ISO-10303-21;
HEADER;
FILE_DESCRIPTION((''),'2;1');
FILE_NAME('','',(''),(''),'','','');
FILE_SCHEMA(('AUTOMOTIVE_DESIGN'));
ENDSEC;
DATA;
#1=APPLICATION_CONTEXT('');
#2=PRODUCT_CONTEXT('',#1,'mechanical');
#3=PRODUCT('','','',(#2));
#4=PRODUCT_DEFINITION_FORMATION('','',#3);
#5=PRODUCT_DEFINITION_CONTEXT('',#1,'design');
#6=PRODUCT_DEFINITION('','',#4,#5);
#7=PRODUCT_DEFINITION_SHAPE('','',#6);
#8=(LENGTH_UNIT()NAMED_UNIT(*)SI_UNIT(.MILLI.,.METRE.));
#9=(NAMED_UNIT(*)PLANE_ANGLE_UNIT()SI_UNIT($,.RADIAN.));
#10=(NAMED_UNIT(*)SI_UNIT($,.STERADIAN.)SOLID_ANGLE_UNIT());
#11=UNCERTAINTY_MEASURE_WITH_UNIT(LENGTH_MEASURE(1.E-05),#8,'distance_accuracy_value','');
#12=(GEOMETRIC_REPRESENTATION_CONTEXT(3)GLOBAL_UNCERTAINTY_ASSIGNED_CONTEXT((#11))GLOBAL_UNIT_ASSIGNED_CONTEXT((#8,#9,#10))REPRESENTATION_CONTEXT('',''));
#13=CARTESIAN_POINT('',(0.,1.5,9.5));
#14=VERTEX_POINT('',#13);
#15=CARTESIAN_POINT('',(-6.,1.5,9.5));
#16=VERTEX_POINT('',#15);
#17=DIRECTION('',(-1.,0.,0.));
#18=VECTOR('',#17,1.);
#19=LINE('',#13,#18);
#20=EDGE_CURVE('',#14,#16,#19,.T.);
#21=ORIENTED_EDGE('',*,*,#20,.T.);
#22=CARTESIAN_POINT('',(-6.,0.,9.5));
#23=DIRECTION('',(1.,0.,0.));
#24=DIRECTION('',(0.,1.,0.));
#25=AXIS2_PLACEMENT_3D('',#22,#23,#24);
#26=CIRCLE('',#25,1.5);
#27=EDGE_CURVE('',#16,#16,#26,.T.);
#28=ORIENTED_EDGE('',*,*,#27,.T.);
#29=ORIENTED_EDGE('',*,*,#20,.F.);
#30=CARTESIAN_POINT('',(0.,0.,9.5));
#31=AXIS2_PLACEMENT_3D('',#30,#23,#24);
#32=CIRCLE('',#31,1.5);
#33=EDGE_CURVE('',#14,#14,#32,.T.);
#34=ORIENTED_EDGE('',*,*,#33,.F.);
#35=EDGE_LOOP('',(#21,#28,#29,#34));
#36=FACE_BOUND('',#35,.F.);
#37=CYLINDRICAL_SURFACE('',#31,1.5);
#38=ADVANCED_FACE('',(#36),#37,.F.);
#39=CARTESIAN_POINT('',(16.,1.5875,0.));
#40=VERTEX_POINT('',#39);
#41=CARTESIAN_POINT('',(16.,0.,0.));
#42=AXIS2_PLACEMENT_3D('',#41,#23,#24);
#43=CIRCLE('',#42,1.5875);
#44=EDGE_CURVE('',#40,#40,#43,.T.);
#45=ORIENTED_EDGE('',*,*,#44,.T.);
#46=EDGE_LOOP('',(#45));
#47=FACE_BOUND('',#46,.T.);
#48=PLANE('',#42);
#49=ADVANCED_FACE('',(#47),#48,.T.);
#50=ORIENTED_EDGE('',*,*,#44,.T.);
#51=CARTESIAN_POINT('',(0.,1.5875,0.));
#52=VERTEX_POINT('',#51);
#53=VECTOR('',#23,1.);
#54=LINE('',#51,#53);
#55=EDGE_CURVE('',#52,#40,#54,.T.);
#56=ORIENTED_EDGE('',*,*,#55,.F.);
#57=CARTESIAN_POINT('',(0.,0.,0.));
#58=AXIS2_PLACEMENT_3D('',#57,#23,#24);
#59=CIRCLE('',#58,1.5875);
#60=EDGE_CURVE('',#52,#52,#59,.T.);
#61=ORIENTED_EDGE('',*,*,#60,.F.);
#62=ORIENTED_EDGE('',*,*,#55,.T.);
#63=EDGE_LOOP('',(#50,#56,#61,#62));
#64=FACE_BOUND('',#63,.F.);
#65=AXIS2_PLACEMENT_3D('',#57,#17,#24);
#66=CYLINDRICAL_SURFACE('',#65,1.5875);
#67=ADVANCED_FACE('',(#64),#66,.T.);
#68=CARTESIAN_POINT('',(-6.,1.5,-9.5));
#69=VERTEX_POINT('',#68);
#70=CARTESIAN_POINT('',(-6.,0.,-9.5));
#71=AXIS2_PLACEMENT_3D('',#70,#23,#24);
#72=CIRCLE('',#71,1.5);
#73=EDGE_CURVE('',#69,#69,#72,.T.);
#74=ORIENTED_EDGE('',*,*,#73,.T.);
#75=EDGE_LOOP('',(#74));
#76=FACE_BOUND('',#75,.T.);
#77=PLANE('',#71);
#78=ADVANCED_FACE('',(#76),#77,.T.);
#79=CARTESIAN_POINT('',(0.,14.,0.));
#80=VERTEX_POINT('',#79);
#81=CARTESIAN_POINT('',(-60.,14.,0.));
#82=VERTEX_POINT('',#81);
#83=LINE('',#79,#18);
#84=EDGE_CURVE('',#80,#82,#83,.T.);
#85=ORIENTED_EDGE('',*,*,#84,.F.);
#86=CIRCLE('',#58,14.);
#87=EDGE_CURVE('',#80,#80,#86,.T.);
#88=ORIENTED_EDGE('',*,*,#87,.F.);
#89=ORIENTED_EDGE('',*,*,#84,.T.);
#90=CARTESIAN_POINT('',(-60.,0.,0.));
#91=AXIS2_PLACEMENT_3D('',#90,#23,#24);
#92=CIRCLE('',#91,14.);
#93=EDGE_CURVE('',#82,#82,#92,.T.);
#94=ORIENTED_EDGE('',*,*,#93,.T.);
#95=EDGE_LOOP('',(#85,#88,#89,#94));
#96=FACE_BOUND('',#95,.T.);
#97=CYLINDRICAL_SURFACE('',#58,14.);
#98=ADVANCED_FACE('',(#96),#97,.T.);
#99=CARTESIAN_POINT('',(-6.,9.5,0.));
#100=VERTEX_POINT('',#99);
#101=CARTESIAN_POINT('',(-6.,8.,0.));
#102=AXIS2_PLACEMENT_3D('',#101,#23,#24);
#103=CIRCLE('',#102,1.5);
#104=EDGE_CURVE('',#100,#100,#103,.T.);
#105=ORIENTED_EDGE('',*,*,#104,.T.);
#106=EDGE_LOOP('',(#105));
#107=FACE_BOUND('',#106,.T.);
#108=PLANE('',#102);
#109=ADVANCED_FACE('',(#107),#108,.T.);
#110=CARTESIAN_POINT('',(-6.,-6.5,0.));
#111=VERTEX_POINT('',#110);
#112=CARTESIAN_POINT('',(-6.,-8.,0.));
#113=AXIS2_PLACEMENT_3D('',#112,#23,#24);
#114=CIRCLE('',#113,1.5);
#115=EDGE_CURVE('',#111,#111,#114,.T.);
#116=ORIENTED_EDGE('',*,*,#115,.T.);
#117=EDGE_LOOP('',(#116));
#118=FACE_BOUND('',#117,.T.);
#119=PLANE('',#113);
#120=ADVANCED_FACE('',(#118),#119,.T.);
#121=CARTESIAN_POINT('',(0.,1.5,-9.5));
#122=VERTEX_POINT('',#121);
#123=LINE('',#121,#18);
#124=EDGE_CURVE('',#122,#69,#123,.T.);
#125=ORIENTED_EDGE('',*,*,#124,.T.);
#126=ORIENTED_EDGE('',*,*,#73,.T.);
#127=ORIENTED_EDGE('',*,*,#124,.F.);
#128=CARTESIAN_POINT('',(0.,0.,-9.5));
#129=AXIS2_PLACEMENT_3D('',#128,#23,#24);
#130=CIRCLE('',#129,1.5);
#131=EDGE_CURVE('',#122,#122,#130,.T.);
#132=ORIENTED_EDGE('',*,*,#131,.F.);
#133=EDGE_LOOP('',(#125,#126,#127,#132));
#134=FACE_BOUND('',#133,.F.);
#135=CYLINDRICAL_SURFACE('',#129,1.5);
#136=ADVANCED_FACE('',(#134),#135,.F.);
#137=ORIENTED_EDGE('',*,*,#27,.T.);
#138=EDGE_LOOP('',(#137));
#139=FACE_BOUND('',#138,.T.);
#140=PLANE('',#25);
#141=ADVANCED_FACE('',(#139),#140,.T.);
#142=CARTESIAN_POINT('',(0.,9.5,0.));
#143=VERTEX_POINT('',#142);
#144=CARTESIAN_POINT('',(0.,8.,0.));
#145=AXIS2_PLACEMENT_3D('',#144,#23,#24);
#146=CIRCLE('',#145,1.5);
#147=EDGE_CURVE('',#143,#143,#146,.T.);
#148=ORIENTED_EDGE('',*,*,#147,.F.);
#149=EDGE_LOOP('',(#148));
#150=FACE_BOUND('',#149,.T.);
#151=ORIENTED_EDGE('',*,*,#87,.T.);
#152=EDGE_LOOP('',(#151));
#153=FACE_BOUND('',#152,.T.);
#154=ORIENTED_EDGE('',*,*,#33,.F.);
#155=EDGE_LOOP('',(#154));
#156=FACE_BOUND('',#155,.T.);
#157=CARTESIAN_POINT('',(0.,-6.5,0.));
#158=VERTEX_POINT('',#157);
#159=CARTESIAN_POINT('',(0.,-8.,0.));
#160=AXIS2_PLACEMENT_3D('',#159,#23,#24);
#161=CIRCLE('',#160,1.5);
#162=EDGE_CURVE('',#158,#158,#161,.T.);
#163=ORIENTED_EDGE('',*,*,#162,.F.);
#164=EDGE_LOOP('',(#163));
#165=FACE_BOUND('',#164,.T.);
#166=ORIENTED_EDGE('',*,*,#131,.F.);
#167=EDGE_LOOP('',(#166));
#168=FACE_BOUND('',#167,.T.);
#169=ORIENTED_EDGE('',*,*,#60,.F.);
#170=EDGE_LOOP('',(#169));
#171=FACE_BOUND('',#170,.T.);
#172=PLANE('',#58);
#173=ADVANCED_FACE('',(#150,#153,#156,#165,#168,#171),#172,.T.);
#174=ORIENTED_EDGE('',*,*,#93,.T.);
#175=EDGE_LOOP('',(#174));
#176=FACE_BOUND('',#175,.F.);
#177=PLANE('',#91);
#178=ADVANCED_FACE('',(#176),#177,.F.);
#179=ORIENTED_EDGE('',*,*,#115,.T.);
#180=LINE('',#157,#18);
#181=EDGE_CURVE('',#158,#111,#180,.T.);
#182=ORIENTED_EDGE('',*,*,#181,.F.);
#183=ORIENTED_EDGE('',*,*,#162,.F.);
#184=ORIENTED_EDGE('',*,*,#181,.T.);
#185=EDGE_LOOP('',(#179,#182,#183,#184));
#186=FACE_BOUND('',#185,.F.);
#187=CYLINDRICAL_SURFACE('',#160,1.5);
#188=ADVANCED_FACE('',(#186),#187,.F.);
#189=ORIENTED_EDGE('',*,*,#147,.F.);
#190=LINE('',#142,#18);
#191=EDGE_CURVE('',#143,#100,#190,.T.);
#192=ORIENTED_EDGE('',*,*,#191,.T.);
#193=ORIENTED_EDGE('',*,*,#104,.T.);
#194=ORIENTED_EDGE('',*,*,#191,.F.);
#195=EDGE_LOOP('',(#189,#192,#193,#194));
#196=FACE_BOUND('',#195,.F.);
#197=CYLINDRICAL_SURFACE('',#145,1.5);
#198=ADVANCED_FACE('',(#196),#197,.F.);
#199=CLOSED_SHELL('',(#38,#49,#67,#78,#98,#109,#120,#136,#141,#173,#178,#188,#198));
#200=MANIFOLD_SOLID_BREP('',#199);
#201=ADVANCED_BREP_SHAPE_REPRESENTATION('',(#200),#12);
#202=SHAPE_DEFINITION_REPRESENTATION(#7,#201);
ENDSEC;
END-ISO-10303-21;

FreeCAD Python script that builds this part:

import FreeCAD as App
import Part
import Sketcher
from FreeCAD import Vector

doc = App.newDocument("Part")
body = doc.addObject("PartDesign::Body", "Body")

# Sketch on YZ plane
sketch1 = body.newObject("Sketcher::SketchObject", "Sketch")
sketch1.AttachmentSupport = (doc.getObject("YZ_Plane"), [""])
sketch1.MapMode = "FlatFace"
sketch1.addGeometry(Part.Circle(Vector(0, 0, 0), Vector(0, 0, 1), 14), False)
sketch1.addConstraint([
    Sketcher.Constraint("Coincident", 0, 3, -1, 1),
    Sketcher.Constraint("Diameter", 0, 28.0),
])
pad1 = body.newObject("PartDesign::Pad", "Pad")
pad1.Profile = sketch1
pad1.Length = 60
pad1.Reversed = True

# Sketch on YZ plane
sketch2 = body.newObject("Sketcher::SketchObject", "Sketch001")
sketch2.AttachmentSupport = (doc.getObject("YZ_Plane"), [""])
sketch2.MapMode = "FlatFace"
sketch2.addGeometry(Part.Circle(Vector(0, 0, 0), Vector(0, 0, 1), 1.6), False)
sketch2.addConstraint([
    Sketcher.Constraint("Coincident", 0, 3, -1, 1),
    Sketcher.Constraint("Diameter", 0, 3.175),
])
pad2 = body.newObject("PartDesign::Pad", "Pad001")
pad2.Profile = sketch2
pad2.Length = 16

# Sketch on YZ plane
sketch3 = body.newObject("Sketcher::SketchObject", "Sketch002")
sketch3.AttachmentSupport = (doc.getObject("YZ_Plane"), [""])
sketch3.MapMode = "FlatFace"
sketch3.addGeometry([
    Part.Circle(Vector(0, 9.5, 0), Vector(0, 0, 1), 1.5),
    Part.Circle(Vector(8, 0, 0), Vector(0, 0, 1), 1.5),
    Part.Circle(Vector(0, -9.5, 0), Vector(0, 0, 1), 1.5),
    Part.Circle(Vector(-8, 0, 0), Vector(0, 0, 1), 1.5),
], False)
sketch3.addConstraint([
    Sketcher.Constraint("Equal", 0, 1),
    Sketcher.Constraint("Equal", 1, 2),
    Sketcher.Constraint("Equal", 2, 3),
    Sketcher.Constraint("Symmetric", 0, 3, 2, 3, -1, 1),
    Sketcher.Constraint("Symmetric", 1, 3, 3, 3, -1, 1),
    Sketcher.Constraint("PointOnObject", 0, 3, -2),
    Sketcher.Constraint("PointOnObject", 1, 3, -1),
    Sketcher.Constraint("Diameter", 0, 3.0),
    Sketcher.Constraint("DistanceX", -1, 1, 1, 3, 8.0),
    Sketcher.Constraint("DistanceY", 2, 3, 0, 3, 19.0),
])
pocket1 = body.newObject("PartDesign::Pocket", "Pocket")
pocket1.Profile = sketch3
pocket1.Length = 6

doc.recompute()
